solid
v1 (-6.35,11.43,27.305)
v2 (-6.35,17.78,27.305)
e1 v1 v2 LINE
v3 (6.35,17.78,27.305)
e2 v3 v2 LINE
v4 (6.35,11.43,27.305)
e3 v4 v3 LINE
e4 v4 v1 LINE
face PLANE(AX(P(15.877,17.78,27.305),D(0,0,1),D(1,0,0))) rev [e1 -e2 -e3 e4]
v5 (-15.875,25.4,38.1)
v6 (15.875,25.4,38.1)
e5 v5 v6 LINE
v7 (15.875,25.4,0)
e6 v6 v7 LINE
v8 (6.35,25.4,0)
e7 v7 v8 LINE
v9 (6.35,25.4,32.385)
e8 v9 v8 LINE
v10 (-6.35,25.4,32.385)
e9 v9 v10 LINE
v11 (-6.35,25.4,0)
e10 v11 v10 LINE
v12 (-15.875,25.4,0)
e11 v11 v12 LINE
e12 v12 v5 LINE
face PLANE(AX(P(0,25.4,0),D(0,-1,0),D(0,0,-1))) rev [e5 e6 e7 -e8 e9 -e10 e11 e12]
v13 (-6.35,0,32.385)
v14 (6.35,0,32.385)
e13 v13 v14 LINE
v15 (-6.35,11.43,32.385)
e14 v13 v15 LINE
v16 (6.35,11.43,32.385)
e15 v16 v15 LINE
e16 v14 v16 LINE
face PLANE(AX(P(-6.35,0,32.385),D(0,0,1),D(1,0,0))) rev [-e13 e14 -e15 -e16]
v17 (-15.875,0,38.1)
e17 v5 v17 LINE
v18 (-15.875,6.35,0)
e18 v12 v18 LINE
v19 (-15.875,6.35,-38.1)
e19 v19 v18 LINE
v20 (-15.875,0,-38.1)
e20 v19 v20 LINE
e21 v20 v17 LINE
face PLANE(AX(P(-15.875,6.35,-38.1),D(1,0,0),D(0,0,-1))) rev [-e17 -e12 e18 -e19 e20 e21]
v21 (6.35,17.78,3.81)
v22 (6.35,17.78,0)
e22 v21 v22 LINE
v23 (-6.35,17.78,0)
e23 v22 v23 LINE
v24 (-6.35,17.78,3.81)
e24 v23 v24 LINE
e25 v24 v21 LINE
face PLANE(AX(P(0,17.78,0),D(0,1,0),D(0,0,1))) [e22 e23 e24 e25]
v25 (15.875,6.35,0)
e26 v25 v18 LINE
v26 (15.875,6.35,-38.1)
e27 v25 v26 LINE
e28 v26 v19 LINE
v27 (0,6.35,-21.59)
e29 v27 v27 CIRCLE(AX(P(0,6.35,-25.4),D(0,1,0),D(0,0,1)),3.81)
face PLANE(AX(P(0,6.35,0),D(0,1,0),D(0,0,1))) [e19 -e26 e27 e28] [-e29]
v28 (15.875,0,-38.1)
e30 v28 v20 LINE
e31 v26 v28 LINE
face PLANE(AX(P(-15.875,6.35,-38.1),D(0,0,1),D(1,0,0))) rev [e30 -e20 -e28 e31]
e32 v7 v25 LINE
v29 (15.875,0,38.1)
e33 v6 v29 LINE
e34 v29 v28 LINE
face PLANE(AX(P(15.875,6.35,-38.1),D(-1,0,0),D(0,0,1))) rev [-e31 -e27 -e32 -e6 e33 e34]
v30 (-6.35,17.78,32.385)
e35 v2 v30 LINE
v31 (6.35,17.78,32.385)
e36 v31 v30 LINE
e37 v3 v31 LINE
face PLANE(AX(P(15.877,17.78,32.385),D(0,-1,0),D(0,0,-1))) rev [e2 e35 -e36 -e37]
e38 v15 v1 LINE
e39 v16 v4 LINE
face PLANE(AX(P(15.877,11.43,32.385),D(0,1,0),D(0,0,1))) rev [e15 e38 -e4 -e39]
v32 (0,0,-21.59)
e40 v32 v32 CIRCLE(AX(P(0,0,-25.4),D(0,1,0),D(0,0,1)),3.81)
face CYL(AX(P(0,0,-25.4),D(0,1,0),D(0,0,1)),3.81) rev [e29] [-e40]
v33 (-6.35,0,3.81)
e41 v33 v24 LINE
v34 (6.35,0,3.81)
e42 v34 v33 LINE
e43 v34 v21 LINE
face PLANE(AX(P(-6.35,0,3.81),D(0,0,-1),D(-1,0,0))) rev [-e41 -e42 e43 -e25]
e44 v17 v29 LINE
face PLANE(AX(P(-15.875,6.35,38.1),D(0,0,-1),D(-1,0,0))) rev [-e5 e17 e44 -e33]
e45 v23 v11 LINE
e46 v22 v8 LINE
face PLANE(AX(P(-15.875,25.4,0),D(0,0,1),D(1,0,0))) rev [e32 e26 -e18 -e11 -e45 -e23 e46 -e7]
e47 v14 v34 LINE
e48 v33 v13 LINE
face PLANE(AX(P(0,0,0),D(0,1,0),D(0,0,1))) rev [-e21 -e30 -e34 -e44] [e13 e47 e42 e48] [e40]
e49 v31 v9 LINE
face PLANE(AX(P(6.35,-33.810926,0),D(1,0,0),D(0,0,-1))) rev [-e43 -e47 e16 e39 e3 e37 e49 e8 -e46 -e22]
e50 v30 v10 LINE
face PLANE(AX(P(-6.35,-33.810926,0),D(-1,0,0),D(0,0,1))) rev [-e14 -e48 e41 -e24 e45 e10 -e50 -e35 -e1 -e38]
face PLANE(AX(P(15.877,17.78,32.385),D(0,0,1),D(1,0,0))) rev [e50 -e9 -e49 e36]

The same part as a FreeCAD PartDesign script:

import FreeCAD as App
import Part
import Sketcher
from FreeCAD import Vector
Q = App.Units.Quantity

doc = App.newDocument("Part")
body = doc.addObject("PartDesign::Body", "Body")

sketch1 = doc.addObject("Sketcher::SketchObject", "Sketch")
body.addObject(sketch1)
sketch1.AttachmentSupport = (doc.XZ_Plane, [""])
sketch1.MapMode = "FlatFace"
sketch1.addGeometry([
    Part.LineSegment(Vector(-16, -38, 0), Vector(-16, 38, 0)),
    Part.LineSegment(Vector(-16, 38, 0), Vector(16, 38, 0)),
    Part.LineSegment(Vector(16, 38, 0), Vector(16, -38, 0)),
    Part.LineSegment(Vector(16, -38, 0), Vector(-16, -38, 0)),
], False)
sketch1.addConstraint([
    Sketcher.Constraint("Coincident", 0, 2, 1, 1),
    Sketcher.Constraint("Coincident", 1, 2, 2, 1),
    Sketcher.Constraint("Coincident", 2, 2, 3, 1),
    Sketcher.Constraint("Coincident", 3, 2, 0, 1),
    Sketcher.Constraint("Vertical", 0),
    Sketcher.Constraint("Horizontal", 1),
    Sketcher.Constraint("Vertical", 2),
    Sketcher.Constraint("Horizontal", 3),
    Sketcher.Constraint("Symmetric", 0, 2, 2, 2, -1, 1),
    Sketcher.Constraint("DistanceY", 0, 1, 0, 2, Q("3 in")),
    Sketcher.Constraint("DistanceX", 1, 1, 1, 2, Q("1.25 in")),
])
pad1 = doc.addObject("PartDesign::Pad", "Pad")
body.addObject(pad1)
pad1.Profile = sketch1
pad1.Length = Q("0.25 in")
pad1.Reversed = True

sketch2 = doc.addObject("Sketcher::SketchObject", "Sketch001")
body.addObject(sketch2)
sketch2.AttachmentSupport = (doc.XZ_Plane, [""])
sketch2.MapMode = "FlatFace"
sketch2.AttachmentOffset = App.Placement(Vector(0, 0, -0.25 * 25.4), App.Rotation())
sketch2.addGeometry(Part.Circle(Vector(0, -25.4, 0), Vector(0, 0, 1), 3.8), False)
sketch2.addConstraint([
    Sketcher.Constraint("PointOnObject", 0, 3, -2),
    Sketcher.Constraint("Diameter", 0, Q("0.3 in")),
    Sketcher.Constraint("DistanceY", 0, 3, -1, 1, Q("1 in")),
])
pocket1 = doc.addObject("PartDesign::Pocket", "Pocket")
body.addObject(pocket1)
pocket1.Profile = sketch2
pocket1.Type = "ThroughAll"
pocket1.Reversed = True

sketch3 = doc.addObject("Sketcher::SketchObject", "Sketch002")
body.addObject(sketch3)
sketch3.AttachmentSupport = (doc.XZ_Plane, [""])
sketch3.MapMode = "FlatFace"
sketch3.AttachmentOffset = App.Placement(Vector(0, 0, -0.25 * 25.4), App.Rotation())
sketch3.addGeometry([
    Part.LineSegment(Vector(-16, 0, 0), Vector(-16, 38, 0)),
    Part.LineSegment(Vector(-16, 38, 0), Vector(16, 38, 0)),
    Part.LineSegment(Vector(16, 38, 0), Vector(16, 0, 0)),
    Part.LineSegment(Vector(16, 0, 0), Vector(-16, 0, 0)),
], False)
sketch3.addConstraint([
    Sketcher.Constraint("Coincident", 0, 2, 1, 1),
    Sketcher.Constraint("Coincident", 1, 2, 2, 1),
    Sketcher.Constraint("Coincident", 2, 2, 3, 1),
    Sketcher.Constraint("Coincident", 3, 2, 0, 1),
    Sketcher.Constraint("Vertical", 0),
    Sketcher.Constraint("Horizontal", 1),
    Sketcher.Constraint("Vertical", 2),
    Sketcher.Constraint("Horizontal", 3),
    Sketcher.Constraint("Symmetric", 2, 2, 3, 2, -1, 1),
    Sketcher.Constraint("DistanceY", 0, 1, 0, 2, Q("1.5 in")),
    Sketcher.Constraint("DistanceX", 1, 1, 1, 2, Q("1.25 in")),
])
pad2 = doc.addObject("PartDesign::Pad", "Pad001")
body.addObject(pad2)
pad2.Profile = sketch3
pad2.Length = Q("0.75 in")
pad2.Reversed = True

sketch4 = doc.addObject("Sketcher::SketchObject", "Sketch003")
body.addObject(sketch4)
sketch4.AttachmentSupport = (doc.XZ_Plane, [""])
sketch4.MapMode = "FlatFace"
sketch4.AttachmentOffset = App.Placement(Vector(0, 0, -1 * 25.4), App.Rotation())
sketch4.addGeometry([
    Part.LineSegment(Vector(-6, 0, 0), Vector(-6, 38, 0)),
    Part.LineSegment(Vector(-6, 38, 0), Vector(6, 38, 0)),
    Part.LineSegment(Vector(6, 38, 0), Vector(6, 0, 0)),
    Part.LineSegment(Vector(6, 0, 0), Vector(-6, 0, 0)),
], False)
sketch4.addConstraint([
    Sketcher.Constraint("Coincident", 0, 2, 1, 1),
    Sketcher.Constraint("Coincident", 1, 2, 2, 1),
    Sketcher.Constraint("Coincident", 2, 2, 3, 1),
    Sketcher.Constraint("Coincident", 3, 2, 0, 1),
    Sketcher.Constraint("Vertical", 0),
    Sketcher.Constraint("Horizontal", 1),
    Sketcher.Constraint("Vertical", 2),
    Sketcher.Constraint("Horizontal", 3),
    Sketcher.Constraint("Symmetric", 2, 2, 3, 2, -1, 1),
    Sketcher.Constraint("DistanceX", 1, 1, 1, 2, Q("0.5 in")),
    Sketcher.Constraint("DistanceY", 0, 1, 0, 2, Q("1.5 in")),
])
pocket2 = doc.addObject("PartDesign::Pocket", "Pocket001")
body.addObject(pocket2)
pocket2.Profile = sketch4
pocket2.Length = Q("0.75 in")
pocket2.Reversed = True

sketch5 = doc.addObject("Sketcher::SketchObject", "Sketch004")
body.addObject(sketch5)
sketch5.AttachmentSupport = (doc.XZ_Plane, [""])
sketch5.MapMode = "FlatFace"
sketch5.AttachmentOffset = App.Placement(Vector(0, 0, -0.25 * 25.4), App.Rotation())
sketch5.addGeometry([
    Part.LineSegment(Vector(-6, 4, 0), Vector(-6, 32, 0)),
    Part.LineSegment(Vector(-6, 32, 0), Vector(6, 32, 0)),
    Part.LineSegment(Vector(6, 32, 0), Vector(6, 4, 0)),
    Part.LineSegment(Vector(6, 4, 0), Vector(-6, 4, 0)),
], False)
sketch5.addConstraint([
    Sketcher.Constraint("Coincident", 0, 2, 1, 1),
    Sketcher.Constraint("Coincident", 1, 2, 2, 1),
    Sketcher.Constraint("Coincident", 2, 2, 3, 1),
    Sketcher.Constraint("Coincident", 3, 2, 0, 1),
    Sketcher.Constraint("Vertical", 0),
    Sketcher.Constraint("Horizontal", 1),
    Sketcher.Constraint("Vertical", 2),
    Sketcher.Constraint("Horizontal", 3),
    Sketcher.Constraint("DistanceX", 1, 1, 1, 2, Q("0.5 in")),
    Sketcher.Constraint("DistanceY", 0, 1, 0, 2, Q("1.125 in")),
    Sketcher.Constraint("DistanceX", 0, 2, -1, 1, Q("0.25 in")),
    Sketcher.Constraint("DistanceY", -1, 1, 2, 2, Q("0.15 in")),
])
pocket3 = doc.addObject("PartDesign::Pocket", "Pocket002")
body.addObject(pocket3)
pocket3.Profile = sketch5
pocket3.Type = "ThroughAll"
pocket3.Reversed = True

sketch6 = doc.addObject("Sketcher::SketchObject", "Sketch005")
body.addObject(sketch6)
sketch6.AttachmentSupport = (doc.XZ_Plane, [""])
sketch6.MapMode = "FlatFace"
sketch6.AttachmentOffset = App.Placement(Vector(0, 0, -0.25 * 25.4), App.Rotation())
sketch6.addGeometry([
    Part.LineSegment(Vector(-6.3, 0, 0), Vector(-6.3, 3.8, 0)),
    Part.LineSegment(Vector(-6.3, 3.8, 0), Vector(6.3, 3.8, 0)),
    Part.LineSegment(Vector(6.3, 3.8, 0), Vector(6.3, 0, 0)),
    Part.LineSegment(Vector(6.3, 0, 0), Vector(-6.3, 0, 0)),
], False)
sketch6.addConstraint([
    Sketcher.Constraint("Coincident", 0, 2, 1, 1),
    Sketcher.Constraint("Coincident", 1, 2, 2, 1),
    Sketcher.Constraint("Coincident", 2, 2, 3, 1),
    Sketcher.Constraint("Coincident", 3, 2, 0, 1),
    Sketcher.Constraint("Vertical", 0),
    Sketcher.Constraint("Horizontal", 1),
    Sketcher.Constraint("Vertical", 2),
    Sketcher.Constraint("Horizontal", 3),
    Sketcher.Constraint("Symmetric", 2, 2, 3, 2, -1, 1),
    Sketcher.Constraint("DistanceX", 1, 1, 1, 2, Q("0.5 in")),
    Sketcher.Constraint("DistanceY", 0, 1, 0, 2, Q("0.15 in")),
])
pad3 = doc.addObject("PartDesign::Pad", "Pad002")
body.addObject(pad3)
pad3.Profile = sketch6
pad3.Length = Q("0.45 in")
pad3.Reversed = True

sketch7 = doc.addObject("Sketcher::SketchObject", "Sketch006")
body.addObject(sketch7)
sketch7.AttachmentSupport = (doc.YZ_Plane, [""])
sketch7.MapMode = "FlatFace"
sketch7.AttachmentOffset = App.Placement(Vector(0, 0, -0.25 * 25.4), App.Rotation())
sketch7.addGeometry([
    Part.LineSegment(Vector(18, 27, 0), Vector(18, 32, 0)),
    Part.LineSegment(Vector(18, 32, 0), Vector(25, 32, 0)),
    Part.LineSegment(Vector(25, 32, 0), Vector(25, 38, 0)),
    Part.LineSegment(Vector(25, 38, 0), Vector(6, 38, 0)),
    Part.LineSegment(Vector(6, 38, 0), Vector(6, 32, 0)),
    Part.LineSegment(Vector(6, 32, 0), Vector(11, 32, 0)),
    Part.LineSegment(Vector(11, 32, 0), Vector(11, 27, 0)),
    Part.LineSegment(Vector(11, 27, 0), Vector(18, 27, 0)),
], False)
sketch7.addConstraint([
    Sketcher.Constraint("Coincident", 0, 2, 1, 1),
    Sketcher.Constraint("Coincident", 1, 2, 2, 1),
    Sketcher.Constraint("Coincident", 2, 2, 3, 1),
    Sketcher.Constraint("Coincident", 3, 2, 4, 1),
    Sketcher.Constraint("Coincident", 4, 2, 5, 1),
    Sketcher.Constraint("Coincident", 5, 2, 6, 1),
    Sketcher.Constraint("Coincident", 6, 2, 7, 1),
    Sketcher.Constraint("Coincident", 7, 2, 0, 1),
    Sketcher.Constraint("Vertical", 0),
    Sketcher.Constraint("Horizontal", 1),
    Sketcher.Constraint("Vertical", 2),
    Sketcher.Constraint("Horizontal", 3),
    Sketcher.Constraint("Vertical", 4),
    Sketcher.Constraint("Horizontal", 5),
    Sketcher.Constraint("Vertical", 6),
    Sketcher.Constraint("Horizontal", 7),
    Sketcher.Constraint("Horizontal", 1, 2, 4, 2),
    Sketcher.Constraint("Equal", 5, 0),
    Sketcher.Constraint("DistanceX", 1, 1, 1, 2, Q("0.3 in")),
    Sketcher.Constraint("DistanceX", 5, 1, 5, 2, Q("0.2 in")),
    Sketcher.Constraint("DistanceX", -1, 1, 1, 2, Q("1 in")),
    Sketcher.Constraint("DistanceX", 3, 2, 3, 1, Q("0.75 in")),
    Sketcher.Constraint("DistanceY", -1, 1, 2, 2, Q("1.5 in")),
    Sketcher.Constraint("DistanceY", 2, 1, 2, 2, Q("0.225 in")),
])
pad4 = doc.addObject("PartDesign::Pad", "Pad003")
body.addObject(pad4)
pad4.Profile = sketch7
pad4.Type = "UpToFirst"

doc.recompute()
